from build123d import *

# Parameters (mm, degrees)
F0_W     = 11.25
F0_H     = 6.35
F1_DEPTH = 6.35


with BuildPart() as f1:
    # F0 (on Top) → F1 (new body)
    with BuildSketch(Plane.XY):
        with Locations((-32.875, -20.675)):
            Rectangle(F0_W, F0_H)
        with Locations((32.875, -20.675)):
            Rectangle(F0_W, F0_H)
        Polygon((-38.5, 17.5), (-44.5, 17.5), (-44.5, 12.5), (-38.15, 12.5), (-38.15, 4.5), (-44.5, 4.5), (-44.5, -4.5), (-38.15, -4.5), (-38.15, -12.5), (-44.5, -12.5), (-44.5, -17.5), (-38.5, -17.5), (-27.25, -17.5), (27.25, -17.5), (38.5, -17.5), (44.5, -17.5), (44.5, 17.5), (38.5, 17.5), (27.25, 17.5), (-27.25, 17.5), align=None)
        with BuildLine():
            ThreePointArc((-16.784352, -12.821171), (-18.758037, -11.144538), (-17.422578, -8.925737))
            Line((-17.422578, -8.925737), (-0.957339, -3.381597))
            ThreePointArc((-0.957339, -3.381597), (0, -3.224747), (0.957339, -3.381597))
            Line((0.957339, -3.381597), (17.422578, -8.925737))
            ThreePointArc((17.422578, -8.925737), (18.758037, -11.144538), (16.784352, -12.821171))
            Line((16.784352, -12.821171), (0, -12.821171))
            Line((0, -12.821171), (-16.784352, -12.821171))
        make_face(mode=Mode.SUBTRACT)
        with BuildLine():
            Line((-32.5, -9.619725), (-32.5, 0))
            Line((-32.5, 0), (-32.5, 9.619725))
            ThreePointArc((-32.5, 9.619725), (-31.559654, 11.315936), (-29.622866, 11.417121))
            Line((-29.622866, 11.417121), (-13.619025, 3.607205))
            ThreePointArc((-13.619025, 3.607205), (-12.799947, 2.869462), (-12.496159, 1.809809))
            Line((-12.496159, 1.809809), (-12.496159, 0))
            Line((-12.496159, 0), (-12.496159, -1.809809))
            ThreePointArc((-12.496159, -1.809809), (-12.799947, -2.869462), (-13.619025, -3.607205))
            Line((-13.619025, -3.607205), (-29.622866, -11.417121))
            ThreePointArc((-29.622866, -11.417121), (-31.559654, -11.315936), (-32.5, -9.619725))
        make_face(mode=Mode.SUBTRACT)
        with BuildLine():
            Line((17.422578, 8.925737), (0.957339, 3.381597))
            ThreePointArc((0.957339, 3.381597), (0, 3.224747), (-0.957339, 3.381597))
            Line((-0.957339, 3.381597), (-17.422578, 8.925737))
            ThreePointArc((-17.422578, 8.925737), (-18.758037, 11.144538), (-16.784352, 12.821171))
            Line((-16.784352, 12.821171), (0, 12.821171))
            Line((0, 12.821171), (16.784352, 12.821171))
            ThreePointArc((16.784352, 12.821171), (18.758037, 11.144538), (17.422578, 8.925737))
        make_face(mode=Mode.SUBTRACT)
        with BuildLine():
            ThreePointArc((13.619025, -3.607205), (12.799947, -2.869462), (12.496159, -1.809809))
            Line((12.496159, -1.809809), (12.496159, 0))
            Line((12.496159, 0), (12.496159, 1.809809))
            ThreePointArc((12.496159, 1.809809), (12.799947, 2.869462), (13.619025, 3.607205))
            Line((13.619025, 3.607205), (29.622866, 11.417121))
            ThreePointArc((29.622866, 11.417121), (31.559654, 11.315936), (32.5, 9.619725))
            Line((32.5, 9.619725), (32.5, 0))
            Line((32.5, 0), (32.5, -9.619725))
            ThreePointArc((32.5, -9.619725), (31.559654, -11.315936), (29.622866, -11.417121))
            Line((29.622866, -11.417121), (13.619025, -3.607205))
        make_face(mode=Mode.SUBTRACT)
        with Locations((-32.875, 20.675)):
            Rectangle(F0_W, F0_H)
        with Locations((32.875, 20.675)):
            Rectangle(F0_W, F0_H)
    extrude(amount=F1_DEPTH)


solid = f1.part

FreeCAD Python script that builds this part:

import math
import FreeCAD as App
import Part
import Sketcher
from FreeCAD import Vector
Q = App.Units.Quantity


def add_polygon(sketch, points):
    """Adds a closed chain of lines whose ends are joined by coincident constraints."""
    first, n = sketch.GeometryCount, len(points)
    for a, b in zip(points, points[1:] + points[:1]):
        sketch.addGeometry(Part.LineSegment(App.Vector(*a, 0), App.Vector(*b, 0)), False)
    for i in range(n):
        sketch.addConstraint(Sketcher.Constraint("Coincident", first + i, 2, first + (i + 1) % n, 1))

doc = App.newDocument("Part")
body = doc.addObject("PartDesign::Body", "Body")

# Sketch on XY plane
sketch1 = body.newObject("Sketcher::SketchObject", "Sketch")
sketch1.AttachmentSupport = (doc.getObject("XY_Plane"), [""])
sketch1.MapMode = "FlatFace"
add_polygon(sketch1, [(-38.5, -17.5), (-38.5, -23.9), (-27.2, -23.9), (-27.2, -17.5), (27.2, -17.5), (27.2, -23.9), (38.5, -23.9), (38.5, -17.5), (44.5, -17.5), (44.5, 17.5), (38.5, 17.5), (38.5, 23.9), (27.2, 23.9), (27.2, 17.5), (-27.2, 17.5), (-27.2, 23.9), (-38.5, 23.9), (-38.5, 17.5), (-44.5, 17.5), (-44.5, 12.5), (-38.1, 12.5), (-38.1, 4.5), (-44.5, 4.5), (-44.5, -4.5), (-38.1, -4.5), (-38.1, -12.5), (-44.5, -12.5), (-44.5, -17.5)])  # lines 0-27
sketch1.addGeometry(Part.ArcOfCircle(Part.Circle(Vector(-30.5, -9.6, 0), Vector(0, 0, 1), 2), math.radians(-180), math.radians(-64)), False)  # 28
sketch1.addGeometry(Part.LineSegment(Vector(-32.5, -9.6, 0), Vector(-32.5, 9.6, 0)), False)  # 29
sketch1.addGeometry(Part.ArcOfCircle(Part.Circle(Vector(-30.5, 9.6, 0), Vector(0, 0, 1), 2), math.radians(64), math.radians(180)), False)  # 30
sketch1.addGeometry(Part.LineSegment(Vector(-29.6, 11.4, 0), Vector(-13.6, 3.6, 0)), False)  # 31
sketch1.addGeometry(Part.ArcOfCircle(Part.Circle(Vector(-14.5, 1.8, 0), Vector(0, 0, 1), 2), math.radians(0), math.radians(64)), False)  # 32
sketch1.addGeometry(Part.LineSegment(Vector(-12.5, 1.8, 0), Vector(-12.5, -1.8, 0)), False)  # 33
sketch1.addGeometry(Part.ArcOfCircle(Part.Circle(Vector(-14.5, -1.8, 0), Vector(0, 0, 1), 2), math.radians(-64), math.radians(0)), False)  # 34
sketch1.addGeometry(Part.LineSegment(Vector(-13.6, -3.6, 0), Vector(-29.6, -11.4, 0)), False)  # 35
sketch1.addGeometry(Part.LineSegment(Vector(16.8, -12.8, 0), Vector(-16.8, -12.8, 0)), False)  # 36
sketch1.addGeometry(Part.ArcOfCircle(Part.Circle(Vector(-16.8, -10.8, 0), Vector(0, 0, 1), 2), math.radians(109), math.radians(270)), False)  # 37
sketch1.addGeometry(Part.LineSegment(Vector(-17.4, -8.9, 0), Vector(-1, -3.4, 0)), False)  # 38
sketch1.addGeometry(Part.ArcOfCircle(Part.Circle(Vector(0, -6.2, 0), Vector(0, 0, 1), 3), math.radians(71), math.radians(109)), False)  # 39
sketch1.addGeometry(Part.LineSegment(Vector(1, -3.4, 0), Vector(17.4, -8.9, 0)), False)  # 40
sketch1.addGeometry(Part.ArcOfCircle(Part.Circle(Vector(16.8, -10.8, 0), Vector(0, 0, 1), 2), math.radians(-90), math.radians(71)), False)  # 41
sketch1.addGeometry(Part.LineSegment(Vector(29.6, -11.4, 0), Vector(13.6, -3.6, 0)), False)  # 42
sketch1.addGeometry(Part.ArcOfCircle(Part.Circle(Vector(14.5, -1.8, 0), Vector(0, 0, 1), 2), math.radians(180), math.radians(244)), False)  # 43
sketch1.addGeometry(Part.LineSegment(Vector(12.5, -1.8, 0), Vector(12.5, 1.8, 0)), False)  # 44
sketch1.addGeometry(Part.ArcOfCircle(Part.Circle(Vector(14.5, 1.8, 0), Vector(0, 0, 1), 2), math.radians(116), math.radians(180)), False)  # 45
sketch1.addGeometry(Part.LineSegment(Vector(13.6, 3.6, 0), Vector(29.6, 11.4, 0)), False)  # 46
sketch1.addGeometry(Part.ArcOfCircle(Part.Circle(Vector(30.5, 9.6, 0), Vector(0, 0, 1), 2), math.radians(0), math.radians(116)), False)  # 47
sketch1.addGeometry(Part.LineSegment(Vector(32.5, 9.6, 0), Vector(32.5, -9.6, 0)), False)  # 48
sketch1.addGeometry(Part.ArcOfCircle(Part.Circle(Vector(30.5, -9.6, 0), Vector(0, 0, 1), 2), math.radians(-116), math.radians(0)), False)  # 49
sketch1.addGeometry(Part.ArcOfCircle(Part.Circle(Vector(16.8, 10.8, 0), Vector(0, 0, 1), 2), math.radians(-71), math.radians(90)), False)  # 50
sketch1.addGeometry(Part.LineSegment(Vector(17.4, 8.9, 0), Vector(1, 3.4, 0)), False)  # 51
sketch1.addGeometry(Part.ArcOfCircle(Part.Circle(Vector(0, 6.2, 0), Vector(0, 0, 1), 3), math.radians(-109), math.radians(-71)), False)  # 52
sketch1.addGeometry(Part.LineSegment(Vector(-1, 3.4, 0), Vector(-17.4, 8.9, 0)), False)  # 53
sketch1.addGeometry(Part.ArcOfCircle(Part.Circle(Vector(-16.8, 10.8, 0), Vector(0, 0, 1), 2), math.radians(90), math.radians(251)), False)  # 54
sketch1.addGeometry(Part.LineSegment(Vector(-16.8, 12.8, 0), Vector(16.8, 12.8, 0)), False)  # 55
sketch1.addConstraint(Sketcher.Constraint("Tangent", 28, 1, 29, 1))
sketch1.addConstraint(Sketcher.Constraint("Tangent", 29, 2, 30, 2))
sketch1.addConstraint(Sketcher.Constraint("Tangent", 30, 1, 31, 1))
sketch1.addConstraint(Sketcher.Constraint("Tangent", 31, 2, 32, 2))
sketch1.addConstraint(Sketcher.Constraint("Tangent", 32, 1, 33, 1))
sketch1.addConstraint(Sketcher.Constraint("Tangent", 33, 2, 34, 2))
sketch1.addConstraint(Sketcher.Constraint("Tangent", 34, 1, 35, 1))
sketch1.addConstraint(Sketcher.Constraint("Tangent", 35, 2, 28, 2))
sketch1.addConstraint(Sketcher.Constraint("Tangent", 36, 2, 37, 2))
sketch1.addConstraint(Sketcher.Constraint("Tangent", 37, 1, 38, 1))
sketch1.addConstraint(Sketcher.Constraint("Tangent", 38, 2, 39, 2))
sketch1.addConstraint(Sketcher.Constraint("Tangent", 39, 1, 40, 1))
sketch1.addConstraint(Sketcher.Constraint("Tangent", 40, 2, 41, 2))
sketch1.addConstraint(Sketcher.Constraint("Tangent", 41, 1, 36, 1))
sketch1.addConstraint(Sketcher.Constraint("Tangent", 42, 2, 43, 2))
sketch1.addConstraint(Sketcher.Constraint("Tangent", 43, 1, 44, 1))
sketch1.addConstraint(Sketcher.Constraint("Tangent", 44, 2, 45, 2))
sketch1.addConstraint(Sketcher.Constraint("Tangent", 45, 1, 46, 1))
sketch1.addConstraint(Sketcher.Constraint("Tangent", 46, 2, 47, 2))
sketch1.addConstraint(Sketcher.Constraint("Tangent", 47, 1, 48, 1))
sketch1.addConstraint(Sketcher.Constraint("Tangent", 48, 2, 49, 2))
sketch1.addConstraint(Sketcher.Constraint("Tangent", 49, 1, 42, 1))
sketch1.addConstraint(Sketcher.Constraint("Tangent", 50, 1, 51, 1))
sketch1.addConstraint(Sketcher.Constraint("Tangent", 51, 2, 52, 2))
sketch1.addConstraint(Sketcher.Constraint("Tangent", 52, 1, 53, 1))
sketch1.addConstraint(Sketcher.Constraint("Tangent", 53, 2, 54, 2))
sketch1.addConstraint(Sketcher.Constraint("Tangent", 54, 1, 55, 1))
sketch1.addConstraint(Sketcher.Constraint("Tangent", 55, 2, 50, 2))
sketch1.addConstraint(Sketcher.Constraint("Vertical", 0))
sketch1.addConstraint(Sketcher.Constraint("Horizontal", 1))
sketch1.addConstraint(Sketcher.Constraint("Vertical", 2))
sketch1.addConstraint(Sketcher.Constraint("Horizontal", 3))
sketch1.addConstraint(Sketcher.Constraint("Vertical", 4))
sketch1.addConstraint(Sketcher.Constraint("Horizontal", 5))
sketch1.addConstraint(Sketcher.Constraint("Vertical", 6))
sketch1.addConstraint(Sketcher.Constraint("Horizontal", 7))
sketch1.addConstraint(Sketcher.Constraint("Vertical", 8))
sketch1.addConstraint(Sketcher.Constraint("Horizontal", 9))
sketch1.addConstraint(Sketcher.Constraint("Vertical", 10))
sketch1.addConstraint(Sketcher.Constraint("Horizontal", 11))
sketch1.addConstraint(Sketcher.Constraint("Vertical", 12))
sketch1.addConstraint(Sketcher.Constraint("Horizontal", 13))
sketch1.addConstraint(Sketcher.Constraint("Vertical", 14))
sketch1.addConstraint(Sketcher.Constraint("Horizontal", 15))
sketch1.addConstraint(Sketcher.Constraint("Vertical", 16))
sketch1.addConstraint(Sketcher.Constraint("Horizontal", 17))
sketch1.addConstraint(Sketcher.Constraint("Vertical", 18))
sketch1.addConstraint(Sketcher.Constraint("Horizontal", 19))
sketch1.addConstraint(Sketcher.Constraint("Vertical", 20))
sketch1.addConstraint(Sketcher.Constraint("Horizontal", 21))
sketch1.addConstraint(Sketcher.Constraint("Vertical", 22))
sketch1.addConstraint(Sketcher.Constraint("Horizontal", 23))
sketch1.addConstraint(Sketcher.Constraint("Vertical", 24))
sketch1.addConstraint(Sketcher.Constraint("Horizontal", 25))
sketch1.addConstraint(Sketcher.Constraint("Vertical", 26))
sketch1.addConstraint(Sketcher.Constraint("Horizontal", 27))
sketch1.addConstraint(Sketcher.Constraint("Vertical", 29))
sketch1.addConstraint(Sketcher.Constraint("Vertical", 33))
sketch1.addConstraint(Sketcher.Constraint("Horizontal", 36))
sketch1.addConstraint(Sketcher.Constraint("Vertical", 44))
sketch1.addConstraint(Sketcher.Constraint("Vertical", 48))
sketch1.addConstraint(Sketcher.Constraint("Horizontal", 55))
sketch1.addConstraint(Sketcher.Constraint("Equal", 28, 30))
sketch1.addConstraint(Sketcher.Constraint("Equal", 30, 32))
sketch1.addConstraint(Sketcher.Constraint("Equal", 32, 34))
sketch1.addConstraint(Sketcher.Constraint("Equal", 30, 37))
sketch1.addConstraint(Sketcher.Constraint("Equal", 37, 41))
sketch1.addConstraint(Sketcher.Constraint("Equal", 34, 43))
sketch1.addConstraint(Sketcher.Constraint("Equal", 43, 45))
sketch1.addConstraint(Sketcher.Constraint("Equal", 45, 47))
sketch1.addConstraint(Sketcher.Constraint("Equal", 47, 49))
sketch1.addConstraint(Sketcher.Constraint("Equal", 49, 50))
sketch1.addConstraint(Sketcher.Constraint("Equal", 39, 52))
sketch1.addConstraint(Sketcher.Constraint("Equal", 50, 54))
sketch1.addConstraint(Sketcher.Constraint("Symmetric", 32, 3, 43, 3, -1, 1))
sketch1.addConstraint(Sketcher.Constraint("Symmetric", 28, 3, 47, 3, -1, 1))
sketch1.addConstraint(Sketcher.Constraint("Symmetric", 37, 3, 50, 3, -1, 1))
sketch1.addConstraint(Sketcher.Constraint("Symmetric", 39, 3, 52, 3, -1, 1))
sketch1.addConstraint(Sketcher.Constraint("Symmetric", 0, 2, 10, 2, -1, 1))
sketch1.addConstraint(Sketcher.Constraint("Symmetric", 2, 2, 12, 2, -1, 1))
sketch1.addConstraint(Sketcher.Constraint("Symmetric", 4, 2, 14, 2, -1, 1))
sketch1.addConstraint(Sketcher.Constraint("Symmetric", 6, 2, 16, 2, -1, 1))
sketch1.addConstraint(Sketcher.Constraint("Symmetric", 8, 2, 26, 2, -1, 1))
sketch1.addConstraint(Sketcher.Constraint("Symmetric", 1, 2, 4, 2, -2))
sketch1.addConstraint(Sketcher.Constraint("Symmetric", 9, 2, 16, 2, -2))
sketch1.addConstraint(Sketcher.Constraint("Symmetric", 38, 2, 39, 1, -2))
sketch1.addConstraint(Sketcher.Constraint("Symmetric", 34, 1, 42, 2, -2))
sketch1.addConstraint(Sketcher.Constraint("Symmetric", 31, 2, 45, 1, -2))
sketch1.addConstraint(Sketcher.Constraint("Symmetric", 20, 2, 23, 2, -1))
sketch1.addConstraint(Sketcher.Constraint("Symmetric", 18, 2, 25, 2, -1))
sketch1.addConstraint(Sketcher.Constraint("Parallel", 40, 53))
sketch1.addConstraint(Sketcher.Constraint("Horizontal", 3, 2, 6, 2))
sketch1.addConstraint(Sketcher.Constraint("Vertical", 18, 2, 21, 2))
sketch1.addConstraint(Sketcher.Constraint("Equal", 25, 0))
sketch1.addConstraint(Sketcher.Constraint("Radius", 28, Q("2 mm")))
sketch1.addConstraint(Sketcher.Constraint("Radius", 39, Q("3 mm")))
sketch1.addConstraint(Sketcher.Constraint("DistanceX", 7, 1, 7, 2, Q("6 mm")))
sketch1.addConstraint(Sketcher.Constraint("DistanceY", 8, 1, 8, 2, Q("35 mm")))
sketch1.addConstraint(Sketcher.Constraint("DistanceY", 18, 2, 18, 1, Q("5 mm")))
sketch1.addConstraint(Sketcher.Constraint("DistanceY", 20, 2, 20, 1, Q("8 mm")))
sketch1.addConstraint(Sketcher.Constraint("DistanceX", 3, 1, 3, 2, Q("54.5 mm")))
sketch1.addConstraint(Sketcher.Constraint("DistanceX", 1, 1, 1, 2, Q("11.25 mm")))
sketch1.addConstraint(Sketcher.Constraint("DistanceX", 19, 1, 19, 2, Q("6.35 mm")))
sketch1.addConstraint(Sketcher.Constraint("DistanceX", 28, 3, -1, 1, Q("30.5 mm")))
sketch1.addConstraint(Sketcher.Constraint("Distance", 31, Q("17.807799 mm")))
sketch1.addConstraint(Sketcher.Constraint("DistanceY", 29, 1, 29, 2, Q("19.23945 mm")))
sketch1.addConstraint(Sketcher.Constraint("DistanceY", 33, 2, 33, 1, Q("3.619618 mm")))
sketch1.addConstraint(Sketcher.Constraint("Distance", 38, Q("17.373589 mm")))
sketch1.addConstraint(Sketcher.Constraint("DistanceX", 36, 2, 36, 1, Q("33.568704 mm")))
sketch1.addConstraint(Sketcher.Constraint("DistanceY", 37, 3, -1, 1, Q("10.821171 mm")))
pad1 = body.newObject("PartDesign::Pad", "Pad")
pad1.Profile = sketch1
pad1.Length = 6.35

doc.recompute()
